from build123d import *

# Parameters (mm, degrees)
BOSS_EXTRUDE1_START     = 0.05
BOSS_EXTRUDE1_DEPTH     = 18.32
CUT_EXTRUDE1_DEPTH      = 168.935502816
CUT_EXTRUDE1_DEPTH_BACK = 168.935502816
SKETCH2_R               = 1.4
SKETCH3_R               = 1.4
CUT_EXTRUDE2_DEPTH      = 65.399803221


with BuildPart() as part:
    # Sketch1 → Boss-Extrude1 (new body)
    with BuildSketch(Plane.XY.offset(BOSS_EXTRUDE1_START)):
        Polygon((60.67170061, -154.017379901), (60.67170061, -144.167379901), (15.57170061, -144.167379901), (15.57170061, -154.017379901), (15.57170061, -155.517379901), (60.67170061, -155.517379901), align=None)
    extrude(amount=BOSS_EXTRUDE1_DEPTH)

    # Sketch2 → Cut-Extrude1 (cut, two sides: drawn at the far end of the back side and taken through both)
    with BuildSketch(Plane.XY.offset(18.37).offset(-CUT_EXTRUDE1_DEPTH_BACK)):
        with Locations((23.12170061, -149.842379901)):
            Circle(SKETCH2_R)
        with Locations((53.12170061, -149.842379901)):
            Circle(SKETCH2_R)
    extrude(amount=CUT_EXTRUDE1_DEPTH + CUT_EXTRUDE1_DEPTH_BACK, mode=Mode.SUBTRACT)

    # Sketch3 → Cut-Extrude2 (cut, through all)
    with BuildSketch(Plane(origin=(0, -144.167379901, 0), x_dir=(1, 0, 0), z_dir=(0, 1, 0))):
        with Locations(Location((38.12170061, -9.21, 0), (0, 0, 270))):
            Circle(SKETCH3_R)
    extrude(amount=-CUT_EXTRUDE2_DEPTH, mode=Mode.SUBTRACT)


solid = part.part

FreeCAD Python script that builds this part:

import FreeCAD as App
import Part
import Sketcher

V = App.Vector
Q = App.Units.Quantity


def add_polygon(sketch, points):
    """Adds a closed chain of lines whose ends are joined by coincident constraints."""
    first, n = sketch.GeometryCount, len(points)
    for a, b in zip(points, points[1:] + points[:1]):
        sketch.addGeometry(Part.LineSegment(App.Vector(*a, 0), App.Vector(*b, 0)), False)
    for i in range(n):
        sketch.addConstraint(Sketcher.Constraint("Coincident", first + i, 2, first + (i + 1) % n, 1))

doc = App.newDocument("Part")
params = doc.addObject("Spreadsheet::Sheet", "Params")
for row, (alias, value) in enumerate([
    ("sketch1_width", "45.1 mm"),
    ("sketch1_height", "11.35 mm"),
    ("pad1_length", "18.32 mm"),
    ("sketch2_diameter", "2.8 mm"),
    ("sketch3_diameter", "2.8 mm"),
], start=1):
    params.set(f"A{row}", alias)
    params.set(f"B{row}", "=" + value)
    params.setAlias(f"B{row}", alias)

body = doc.addObject("PartDesign::Body", "Body")

# Sketch on XY plane
sketch1 = doc.addObject("Sketcher::SketchObject", "Sketch")
body.addObject(sketch1)
sketch1.AttachmentSupport = (doc.XY_Plane, [""])
sketch1.MapMode = "FlatFace"
sketch1.AttachmentOffset = App.Placement(V(0, 0, 0.05), App.Rotation())
add_polygon(sketch1, [(61, -144), (16, -144), (16, -156), (61, -156)])  # lines 0-3
sketch1.addConstraint(Sketcher.Constraint("Horizontal", 0))
sketch1.addConstraint(Sketcher.Constraint("Vertical", 1))
sketch1.addConstraint(Sketcher.Constraint("Horizontal", 2))
sketch1.addConstraint(Sketcher.Constraint("Vertical", 3))
sketch1.addConstraint(Sketcher.Constraint("DistanceX", 0, 2, 0, 1, Q("45.1 mm")))
sketch1.addConstraint(Sketcher.Constraint("DistanceY", 1, 2, 1, 1, Q("11.35 mm")))
sketch1.addConstraint(Sketcher.Constraint("DistanceX", -1, 1, 0, 2, Q("15.571701 mm")))
sketch1.addConstraint(Sketcher.Constraint("DistanceY", 0, 2, -1, 1, Q("144.16738 mm")))
sketch1.setExpression("Constraints[8]", "Params.sketch1_width")
sketch1.setExpression("Constraints[9]", "Params.sketch1_height")
pad1 = doc.addObject("PartDesign::Pad", "Pad")
body.addObject(pad1)
pad1.Profile = sketch1
pad1.setExpression("Length", "Params.pad1_length")

# Sketch on XY plane
sketch2 = doc.addObject("Sketcher::SketchObject", "Sketch001")
body.addObject(sketch2)
sketch2.AttachmentSupport = (doc.XY_Plane, [""])
sketch2.MapMode = "FlatFace"
sketch2.AttachmentOffset = App.Placement(V(0, 0, 18.37), App.Rotation())
sketch2.addGeometry(Part.Circle(V(23.1, -149.8, 0), V(0, 0, 1), 1.4), False)
sketch2.addGeometry(Part.Circle(V(53.1, -149.8, 0), V(0, 0, 1), 1.4), False)
sketch2.addConstraint(Sketcher.Constraint("Equal", 0, 1))
sketch2.addConstraint(Sketcher.Constraint("Horizontal", 0, 3, 1, 3))
sketch2.addConstraint(Sketcher.Constraint("Diameter", 0, Q("2.8 mm")))
sketch2.addConstraint(Sketcher.Constraint("DistanceX", 0, 3, 1, 3, Q("30 mm")))
sketch2.addConstraint(Sketcher.Constraint("DistanceX", -1, 1, 0, 3, Q("23.121701 mm")))
sketch2.addConstraint(Sketcher.Constraint("DistanceY", 0, 3, -1, 1, Q("149.84238 mm")))
sketch2.setExpression("Constraints[2]", "Params.sketch2_diameter")
pocket1 = doc.addObject("PartDesign::Pocket", "Pocket")
body.addObject(pocket1)
pocket1.Profile = sketch2
pocket1.Type = "ThroughAll"
pocket1.Midplane = True

# Sketch on XZ plane
sketch3 = doc.addObject("Sketcher::SketchObject", "Sketch002")
body.addObject(sketch3)
sketch3.AttachmentSupport = (doc.XZ_Plane, [""])
sketch3.MapMode = "FlatFace"
sketch3.AttachmentOffset = App.Placement(V(0, 0, 144.16738), App.Rotation())
sketch3.addGeometry(Part.Circle(V(38.1, 9.2, 0), V(0, 0, 1), 1.4), False)
sketch3.addConstraint(Sketcher.Constraint("Diameter", 0, Q("2.8 mm")))
sketch3.addConstraint(Sketcher.Constraint("DistanceY", -1, 1, 0, 3, Q("9.21 mm")))
sketch3.addConstraint(Sketcher.Constraint("DistanceX", -1, 1, 0, 3, Q("38.121701 mm")))
sketch3.setExpression("Constraints[0]", "Params.sketch3_diameter")
pocket2 = doc.addObject("PartDesign::Pocket", "Pocket001")
body.addObject(pocket2)
pocket2.Profile = sketch3
pocket2.Type = "ThroughAll"
pocket2.Reversed = True

doc.recompute()
